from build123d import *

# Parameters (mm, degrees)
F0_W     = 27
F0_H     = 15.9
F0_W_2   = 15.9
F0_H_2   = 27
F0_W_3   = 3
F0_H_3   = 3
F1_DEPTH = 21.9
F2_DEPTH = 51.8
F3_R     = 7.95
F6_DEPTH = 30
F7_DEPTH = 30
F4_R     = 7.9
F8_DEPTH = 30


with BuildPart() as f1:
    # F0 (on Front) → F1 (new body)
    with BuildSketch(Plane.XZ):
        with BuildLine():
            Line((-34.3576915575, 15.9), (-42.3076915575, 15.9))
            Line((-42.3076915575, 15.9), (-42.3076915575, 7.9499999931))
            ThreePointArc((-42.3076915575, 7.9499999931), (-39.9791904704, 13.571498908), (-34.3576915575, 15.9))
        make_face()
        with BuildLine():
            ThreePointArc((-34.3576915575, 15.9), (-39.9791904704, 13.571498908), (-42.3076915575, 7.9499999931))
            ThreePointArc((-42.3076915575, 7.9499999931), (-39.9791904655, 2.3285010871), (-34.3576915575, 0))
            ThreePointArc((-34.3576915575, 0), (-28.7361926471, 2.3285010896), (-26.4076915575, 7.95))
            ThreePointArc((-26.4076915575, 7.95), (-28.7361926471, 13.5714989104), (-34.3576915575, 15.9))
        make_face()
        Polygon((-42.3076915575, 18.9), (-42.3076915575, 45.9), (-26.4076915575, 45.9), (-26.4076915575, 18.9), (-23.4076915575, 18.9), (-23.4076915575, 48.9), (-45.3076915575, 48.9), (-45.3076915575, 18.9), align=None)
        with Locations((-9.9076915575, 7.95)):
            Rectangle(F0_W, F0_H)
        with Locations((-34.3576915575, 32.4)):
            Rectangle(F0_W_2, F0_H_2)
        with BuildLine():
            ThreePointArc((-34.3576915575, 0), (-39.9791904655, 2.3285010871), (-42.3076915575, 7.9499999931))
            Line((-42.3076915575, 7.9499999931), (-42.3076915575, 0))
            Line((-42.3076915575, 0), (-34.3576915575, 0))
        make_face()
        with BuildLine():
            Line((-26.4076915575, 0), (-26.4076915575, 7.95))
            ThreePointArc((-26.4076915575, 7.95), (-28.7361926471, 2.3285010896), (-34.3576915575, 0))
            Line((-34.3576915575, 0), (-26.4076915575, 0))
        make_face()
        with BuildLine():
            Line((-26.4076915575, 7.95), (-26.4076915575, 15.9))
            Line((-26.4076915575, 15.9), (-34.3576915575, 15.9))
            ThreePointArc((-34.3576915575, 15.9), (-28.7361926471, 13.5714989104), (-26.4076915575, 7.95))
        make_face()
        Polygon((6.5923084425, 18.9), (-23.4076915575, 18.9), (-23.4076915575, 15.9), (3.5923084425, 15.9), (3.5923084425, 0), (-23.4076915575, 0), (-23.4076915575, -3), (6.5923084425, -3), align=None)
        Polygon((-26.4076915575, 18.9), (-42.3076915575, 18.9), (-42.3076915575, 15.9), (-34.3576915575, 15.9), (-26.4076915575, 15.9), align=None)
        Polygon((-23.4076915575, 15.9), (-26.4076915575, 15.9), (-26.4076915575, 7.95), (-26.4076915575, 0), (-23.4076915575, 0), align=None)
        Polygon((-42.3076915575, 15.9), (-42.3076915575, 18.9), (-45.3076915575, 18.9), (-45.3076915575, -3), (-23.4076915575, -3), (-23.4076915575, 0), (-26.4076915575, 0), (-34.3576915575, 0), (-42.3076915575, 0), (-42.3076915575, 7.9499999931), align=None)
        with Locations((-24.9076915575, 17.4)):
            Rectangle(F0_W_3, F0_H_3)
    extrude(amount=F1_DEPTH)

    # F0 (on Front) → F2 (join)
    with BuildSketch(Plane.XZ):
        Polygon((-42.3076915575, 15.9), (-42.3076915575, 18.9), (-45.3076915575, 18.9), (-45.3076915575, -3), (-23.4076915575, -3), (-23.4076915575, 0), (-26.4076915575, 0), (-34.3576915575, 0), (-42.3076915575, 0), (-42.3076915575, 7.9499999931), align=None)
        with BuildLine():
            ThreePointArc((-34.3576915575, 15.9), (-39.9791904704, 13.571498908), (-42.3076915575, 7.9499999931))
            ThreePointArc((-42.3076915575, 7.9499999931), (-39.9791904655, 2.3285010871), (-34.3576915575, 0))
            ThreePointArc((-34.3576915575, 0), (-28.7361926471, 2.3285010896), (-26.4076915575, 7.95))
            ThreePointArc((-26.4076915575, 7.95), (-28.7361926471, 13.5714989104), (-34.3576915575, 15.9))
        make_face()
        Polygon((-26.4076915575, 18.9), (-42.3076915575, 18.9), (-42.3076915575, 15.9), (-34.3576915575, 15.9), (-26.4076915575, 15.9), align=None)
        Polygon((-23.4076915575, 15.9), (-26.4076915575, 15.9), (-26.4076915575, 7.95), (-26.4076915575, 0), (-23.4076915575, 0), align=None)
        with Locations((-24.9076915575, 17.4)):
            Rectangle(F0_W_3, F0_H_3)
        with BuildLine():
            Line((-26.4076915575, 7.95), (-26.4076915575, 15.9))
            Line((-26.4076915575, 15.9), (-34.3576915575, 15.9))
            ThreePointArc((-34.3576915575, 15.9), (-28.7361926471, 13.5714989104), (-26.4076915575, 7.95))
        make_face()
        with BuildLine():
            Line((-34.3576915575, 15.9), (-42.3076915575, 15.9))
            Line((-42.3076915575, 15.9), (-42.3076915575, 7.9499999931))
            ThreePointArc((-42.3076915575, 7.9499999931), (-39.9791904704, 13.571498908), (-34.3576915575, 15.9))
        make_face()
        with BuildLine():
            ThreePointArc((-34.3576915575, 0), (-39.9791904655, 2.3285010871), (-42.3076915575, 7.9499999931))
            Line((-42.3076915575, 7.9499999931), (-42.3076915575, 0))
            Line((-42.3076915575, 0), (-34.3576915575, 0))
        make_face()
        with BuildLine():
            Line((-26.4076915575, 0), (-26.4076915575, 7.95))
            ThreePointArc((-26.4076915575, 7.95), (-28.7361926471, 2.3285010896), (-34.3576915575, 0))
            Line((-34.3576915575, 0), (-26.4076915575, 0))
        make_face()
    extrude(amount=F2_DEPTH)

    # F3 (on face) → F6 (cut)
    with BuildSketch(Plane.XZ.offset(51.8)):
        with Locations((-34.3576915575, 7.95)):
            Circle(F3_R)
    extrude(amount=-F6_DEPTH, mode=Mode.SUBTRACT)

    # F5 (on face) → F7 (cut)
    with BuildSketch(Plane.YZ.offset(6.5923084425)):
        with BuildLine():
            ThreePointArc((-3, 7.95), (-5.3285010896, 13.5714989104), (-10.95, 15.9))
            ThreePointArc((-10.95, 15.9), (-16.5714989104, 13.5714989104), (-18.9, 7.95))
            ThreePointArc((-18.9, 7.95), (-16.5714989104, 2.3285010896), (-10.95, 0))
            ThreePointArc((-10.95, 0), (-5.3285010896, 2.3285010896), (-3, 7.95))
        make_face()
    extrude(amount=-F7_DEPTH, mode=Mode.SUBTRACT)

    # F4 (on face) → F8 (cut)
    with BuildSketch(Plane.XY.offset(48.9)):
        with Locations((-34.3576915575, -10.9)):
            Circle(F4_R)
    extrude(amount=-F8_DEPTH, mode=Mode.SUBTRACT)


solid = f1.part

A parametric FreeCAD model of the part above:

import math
import FreeCAD as App
import Part
import Sketcher

V = App.Vector
Q = App.Units.Quantity

doc = App.newDocument("Part")
body = doc.addObject("PartDesign::Body", "Body")

# Sketch on XZ plane
sketch1 = body.newObject("Sketcher::SketchObject", "Sketch")
sketch1.AttachmentSupport = (doc.getObject("XZ_Plane"), [""])
sketch1.MapMode = "FlatFace"
sketch1.addGeometry([
    Part.LineSegment(V(6.592308, 18.9, 0), V(-23.407692, 18.9, 0)),  # 0
    Part.LineSegment(V(-23.407692, 18.9, 0), V(-23.407692, 48.9, 0)),  # 1
    Part.LineSegment(V(-23.407692, 48.9, 0), V(-45.307692, 48.9, 0)),  # 2
    Part.LineSegment(V(-45.307692, 48.9, 0), V(-45.307692, -3, 0)),  # 3
    Part.LineSegment(V(-45.307692, -3, 0), V(6.592308, -3, 0)),  # 4
    Part.LineSegment(V(6.592308, -3, 0), V(6.592308, 18.9, 0)),  # 5
], False)
sketch1.addConstraint([
    Sketcher.Constraint("Coincident", 0, 2, 1, 1),
    Sketcher.Constraint("Coincident", 1, 2, 2, 1),
    Sketcher.Constraint("Coincident", 2, 2, 3, 1),
    Sketcher.Constraint("Coincident", 3, 2, 4, 1),
    Sketcher.Constraint("Coincident", 4, 2, 5, 1),
    Sketcher.Constraint("Coincident", 5, 2, 0, 1),
    Sketcher.Constraint("Horizontal", 0),
    Sketcher.Constraint("Vertical", 1),
    Sketcher.Constraint("Horizontal", 2),
    Sketcher.Constraint("Vertical", 3),
    Sketcher.Constraint("Horizontal", 4),
    Sketcher.Constraint("Vertical", 5),
    Sketcher.Constraint("Equal", 0, 1),
    Sketcher.Constraint("Equal", 4, 3),
    Sketcher.Constraint("DistanceX", 0, 2, 0, 1, Q("30 mm")),
    Sketcher.Constraint("DistanceX", 2, 2, 2, 1, Q("21.9 mm")),
    Sketcher.Constraint("DistanceY", 3, 2, -1, 1, Q("3 mm")),
    Sketcher.Constraint("DistanceX", 0, 2, -1, 1, Q("23.407692 mm")),
])
pad1 = body.newObject("PartDesign::Pad", "Pad")
pad1.Profile = sketch1
pad1.Length = 21.9

# Sketch on XZ plane
sketch2 = body.newObject("Sketcher::SketchObject", "Sketch001")
sketch2.AttachmentSupport = (doc.getObject("XZ_Plane"), [""])
sketch2.MapMode = "FlatFace"
sketch2.addGeometry([
    Part.LineSegment(V(-23.407692, -3, 0), V(-23.407692, 18.9, 0)),
    Part.LineSegment(V(-23.407692, 18.9, 0), V(-45.307692, 18.9, 0)),
    Part.LineSegment(V(-45.307692, 18.9, 0), V(-45.307692, -3, 0)),
    Part.LineSegment(V(-45.307692, -3, 0), V(-23.407692, -3, 0)),
], False)
sketch2.addConstraint([
    Sketcher.Constraint("Coincident", 0, 2, 1, 1),
    Sketcher.Constraint("Coincident", 1, 2, 2, 1),
    Sketcher.Constraint("Coincident", 2, 2, 3, 1),
    Sketcher.Constraint("Coincident", 3, 2, 0, 1),
    Sketcher.Constraint("Vertical", 0),
    Sketcher.Constraint("Horizontal", 1),
    Sketcher.Constraint("Vertical", 2),
    Sketcher.Constraint("Horizontal", 3),
    Sketcher.Constraint("Equal", 3, 0),
    Sketcher.Constraint("DistanceX", 1, 2, 1, 1, Q("21.9 mm")),
    Sketcher.Constraint("DistanceY", 2, 2, -1, 1, Q("3 mm")),
    Sketcher.Constraint("DistanceX", 0, 2, -1, 1, Q("23.407692 mm")),
])
pad2 = body.newObject("PartDesign::Pad", "Pad001")
pad2.Profile = sketch2
pad2.Length = 51.8

# Sketch on XZ plane
sketch3 = body.newObject("Sketcher::SketchObject", "Sketch002")
sketch3.AttachmentSupport = (doc.getObject("XZ_Plane"), [""])
sketch3.MapMode = "FlatFace"
sketch3.AttachmentOffset = App.Placement(V(0, 0, 51.8), App.Rotation())
sketch3.addGeometry(Part.Circle(V(-34.357692, 7.95, 0), V(0, 0, 1), 7.95), False)
sketch3.addConstraint([
    Sketcher.Constraint("Diameter", 0, Q("15.9 mm")),
    Sketcher.Constraint("DistanceY", -1, 1, 0, 3, Q("7.95 mm")),
    Sketcher.Constraint("DistanceX", 0, 3, -1, 1, Q("34.357692 mm")),
])
pocket1 = body.newObject("PartDesign::Pocket", "Pocket")
pocket1.Profile = sketch3
pocket1.Length = 30

# Sketch on YZ plane
sketch4 = body.newObject("Sketcher::SketchObject", "Sketch003")
sketch4.AttachmentSupport = (doc.getObject("YZ_Plane"), [""])
sketch4.MapMode = "FlatFace"
sketch4.AttachmentOffset = App.Placement(V(0, 0, 6.592308), App.Rotation())
sketch4.addGeometry([
    Part.ArcOfCircle(Part.Circle(V(-10.95, 7.95, 0), V(0, 0, 1), 7.95), math.radians(0), math.radians(90)),
    Part.ArcOfCircle(Part.Circle(V(-10.95, 7.95, 0), V(0, 0, 1), 7.95), math.radians(90), math.radians(180)),
    Part.ArcOfCircle(Part.Circle(V(-10.95, 7.95, 0), V(0, 0, 1), 7.95), math.radians(180), math.radians(270)),
    Part.ArcOfCircle(Part.Circle(V(-10.95, 7.95, 0), V(0, 0, 1), 7.95), math.radians(-90), math.radians(0)),
], False)
sketch4.addConstraint([
    Sketcher.Constraint("Tangent", 0, 2, 1, 1),
    Sketcher.Constraint("Tangent", 1, 2, 2, 1),
    Sketcher.Constraint("Tangent", 2, 2, 3, 1),
    Sketcher.Constraint("Tangent", 3, 2, 0, 1),
    Sketcher.Constraint("Equal", 0, 1),
    Sketcher.Constraint("PointOnObject", 2, 2, -1),
    Sketcher.Constraint("Horizontal", 3, 3, 1, 2),
    Sketcher.Constraint("Horizontal", 1, 2, 3, 2),
    Sketcher.Constraint("Vertical", 3, 3, 0, 2),
    Sketcher.Constraint("Vertical", 0, 2, 2, 2),
    Sketcher.Constraint("Radius", 0, Q("7.95 mm")),
    Sketcher.Constraint("DistanceX", 3, 2, -1, 1, Q("3 mm")),
])
pocket2 = body.newObject("PartDesign::Pocket", "Pocket001")
pocket2.Profile = sketch4
pocket2.Length = 30

# Sketch on XY plane
sketch5 = body.newObject("Sketcher::SketchObject", "Sketch004")
sketch5.AttachmentSupport = (doc.getObject("XY_Plane"), [""])
sketch5.MapMode = "FlatFace"
sketch5.AttachmentOffset = App.Placement(V(0, 0, 48.9), App.Rotation())
sketch5.addGeometry(Part.Circle(V(-34.357692, -10.9, 0), V(0, 0, 1), 7.9), False)
sketch5.addConstraint([
    Sketcher.Constraint("Diameter", 0, Q("15.8 mm")),
    Sketcher.Constraint("DistanceY", 0, 3, -1, 1, Q("10.9 mm")),
    Sketcher.Constraint("DistanceX", 0, 3, -1, 1, Q("34.357692 mm")),
])
pocket3 = body.newObject("PartDesign::Pocket", "Pocket002")
pocket3.Profile = sketch5
pocket3.Length = 30

doc.recompute()
